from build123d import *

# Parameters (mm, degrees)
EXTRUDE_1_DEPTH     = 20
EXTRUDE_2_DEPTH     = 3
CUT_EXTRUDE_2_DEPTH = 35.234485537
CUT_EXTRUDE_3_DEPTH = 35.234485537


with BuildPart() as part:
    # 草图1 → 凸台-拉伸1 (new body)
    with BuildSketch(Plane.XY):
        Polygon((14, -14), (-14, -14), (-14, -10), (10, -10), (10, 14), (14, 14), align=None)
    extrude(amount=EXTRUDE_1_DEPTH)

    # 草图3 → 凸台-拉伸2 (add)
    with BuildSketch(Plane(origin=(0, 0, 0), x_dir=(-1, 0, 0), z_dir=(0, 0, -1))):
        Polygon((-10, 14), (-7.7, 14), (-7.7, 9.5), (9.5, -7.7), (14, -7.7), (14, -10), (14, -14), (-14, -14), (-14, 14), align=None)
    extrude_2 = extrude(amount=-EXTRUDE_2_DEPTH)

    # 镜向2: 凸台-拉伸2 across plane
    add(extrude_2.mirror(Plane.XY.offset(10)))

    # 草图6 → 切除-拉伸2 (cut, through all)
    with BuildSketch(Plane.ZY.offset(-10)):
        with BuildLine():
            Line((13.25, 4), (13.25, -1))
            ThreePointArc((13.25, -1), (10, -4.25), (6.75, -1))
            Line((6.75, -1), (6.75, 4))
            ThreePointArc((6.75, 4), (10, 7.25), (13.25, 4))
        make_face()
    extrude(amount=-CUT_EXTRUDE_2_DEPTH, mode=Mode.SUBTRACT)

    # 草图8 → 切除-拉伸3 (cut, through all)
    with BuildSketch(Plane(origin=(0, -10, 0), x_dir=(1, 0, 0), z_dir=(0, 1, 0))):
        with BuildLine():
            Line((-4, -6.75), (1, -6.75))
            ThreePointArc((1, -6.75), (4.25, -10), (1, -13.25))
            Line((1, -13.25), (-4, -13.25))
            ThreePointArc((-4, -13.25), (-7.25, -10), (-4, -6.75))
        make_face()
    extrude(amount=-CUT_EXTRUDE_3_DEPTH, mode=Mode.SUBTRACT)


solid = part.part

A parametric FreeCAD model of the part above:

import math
import FreeCAD as App
import Part
import Sketcher
from FreeCAD import Vector
Q = App.Units.Quantity

doc = App.newDocument("Part")
body = doc.addObject("PartDesign::Body", "Body")

# Sketch on XY plane
sketch1 = body.newObject("Sketcher::SketchObject", "Sketch")
sketch1.AttachmentSupport = (doc.getObject("XY_Plane"), [""])
sketch1.MapMode = "FlatFace"
sketch1.addGeometry(Part.LineSegment(Vector(-14, -14, 0), Vector(14, -14, 0)), False)
sketch1.addGeometry(Part.LineSegment(Vector(14, -14, 0), Vector(14, 14, 0)), False)
sketch1.addGeometry(Part.LineSegment(Vector(14, 14, 0), Vector(10, 14, 0)), False)
sketch1.addGeometry(Part.LineSegment(Vector(10, 14, 0), Vector(10, -10, 0)), False)
sketch1.addGeometry(Part.LineSegment(Vector(10, -10, 0), Vector(-14, -10, 0)), False)
sketch1.addGeometry(Part.LineSegment(Vector(-14, -10, 0), Vector(-14, -14, 0)), False)
sketch1.addConstraint(Sketcher.Constraint("Coincident", 0, 2, 1, 1))
sketch1.addConstraint(Sketcher.Constraint("Coincident", 1, 2, 2, 1))
sketch1.addConstraint(Sketcher.Constraint("Coincident", 2, 2, 3, 1))
sketch1.addConstraint(Sketcher.Constraint("Coincident", 3, 2, 4, 1))
sketch1.addConstraint(Sketcher.Constraint("Coincident", 4, 2, 5, 1))
sketch1.addConstraint(Sketcher.Constraint("Coincident", 5, 2, 0, 1))
sketch1.addConstraint(Sketcher.Constraint("Horizontal", 0))
sketch1.addConstraint(Sketcher.Constraint("Vertical", 1))
sketch1.addConstraint(Sketcher.Constraint("Horizontal", 2))
sketch1.addConstraint(Sketcher.Constraint("Vertical", 3))
sketch1.addConstraint(Sketcher.Constraint("Horizontal", 4))
sketch1.addConstraint(Sketcher.Constraint("Vertical", 5))
sketch1.addConstraint(Sketcher.Constraint("Symmetric", 1, 2, 5, 2, -1, 1))
sketch1.addConstraint(Sketcher.Constraint("Equal", 0, 1))
sketch1.addConstraint(Sketcher.Constraint("Equal", 4, 3))
sketch1.addConstraint(Sketcher.Constraint("DistanceX", 0, 1, 0, 2, Q("28 mm")))
sketch1.addConstraint(Sketcher.Constraint("DistanceX", 2, 2, 2, 1, Q("4 mm")))
pad1 = body.newObject("PartDesign::Pad", "Pad")
pad1.Profile = sketch1
pad1.Length = 20

# Sketch on XY plane
sketch2 = body.newObject("Sketcher::SketchObject", "Sketch001")
sketch2.AttachmentSupport = (doc.getObject("XY_Plane"), [""])
sketch2.MapMode = "FlatFace"
sketch2.addGeometry(Part.LineSegment(Vector(7.7, 14, 0), Vector(14, 14, 0)), False)
sketch2.addGeometry(Part.LineSegment(Vector(14, 14, 0), Vector(14, -14, 0)), False)
sketch2.addGeometry(Part.LineSegment(Vector(14, -14, 0), Vector(-14, -14, 0)), False)
sketch2.addGeometry(Part.LineSegment(Vector(-14, -14, 0), Vector(-14, -7.7, 0)), False)
sketch2.addGeometry(Part.LineSegment(Vector(-14, -7.7, 0), Vector(-9.5, -7.7, 0)), False)
sketch2.addGeometry(Part.LineSegment(Vector(-9.5, -7.7, 0), Vector(7.7, 9.5, 0)), False)
sketch2.addGeometry(Part.LineSegment(Vector(7.7, 9.5, 0), Vector(7.7, 14, 0)), False)
sketch2.addConstraint(Sketcher.Constraint("Coincident", 0, 2, 1, 1))
sketch2.addConstraint(Sketcher.Constraint("Coincident", 1, 2, 2, 1))
sketch2.addConstraint(Sketcher.Constraint("Coincident", 2, 2, 3, 1))
sketch2.addConstraint(Sketcher.Constraint("Coincident", 3, 2, 4, 1))
sketch2.addConstraint(Sketcher.Constraint("Coincident", 4, 2, 5, 1))
sketch2.addConstraint(Sketcher.Constraint("Coincident", 5, 2, 6, 1))
sketch2.addConstraint(Sketcher.Constraint("Coincident", 6, 2, 0, 1))
sketch2.addConstraint(Sketcher.Constraint("Horizontal", 0))
sketch2.addConstraint(Sketcher.Constraint("Vertical", 1))
sketch2.addConstraint(Sketcher.Constraint("Horizontal", 2))
sketch2.addConstraint(Sketcher.Constraint("Vertical", 3))
sketch2.addConstraint(Sketcher.Constraint("Horizontal", 4))
sketch2.addConstraint(Sketcher.Constraint("Vertical", 6))
sketch2.addConstraint(Sketcher.Constraint("Symmetric", 0, 2, 2, 2, -1, 1))
sketch2.addConstraint(Sketcher.Constraint("Equal", 2, 1))
sketch2.addConstraint(Sketcher.Constraint("Equal", 0, 3))
sketch2.addConstraint(Sketcher.Constraint("Equal", 4, 6))
sketch2.addConstraint(Sketcher.Constraint("DistanceX", 2, 2, 2, 1, Q("28 mm")))
sketch2.addConstraint(Sketcher.Constraint("DistanceX", 0, 1, 0, 2, Q("6.3 mm")))
sketch2.addConstraint(Sketcher.Constraint("DistanceX", 4, 1, 4, 2, Q("4.5 mm")))
pad2 = body.newObject("PartDesign::Pad", "Pad001")
pad2.Profile = sketch2
pad2.Length = 3
doc.recompute()

datumplane = body.newObject("PartDesign::Plane", "DatumPlane")
datumplane.AttachmentSupport = (doc.getObject("XY_Plane"), [""])
datumplane.MapMode = "FlatFace"
datumplane.AttachmentOffset = App.Placement(Vector(0, 0, 10), App.Rotation())
mirrored = body.newObject("PartDesign::Mirrored", "Mirrored")
mirrored.Originals = [pad2]
mirrored.MirrorPlane = (datumplane, [""])
body.Tip = mirrored

# Sketch on YZ plane
sketch3 = body.newObject("Sketcher::SketchObject", "Sketch002")
sketch3.AttachmentSupport = (doc.getObject("YZ_Plane"), [""])
sketch3.MapMode = "FlatFace"
sketch3.AttachmentOffset = App.Placement(Vector(0, 0, 10), App.Rotation())
sketch3.addGeometry(Part.LineSegment(Vector(-1, 13.2, 0), Vector(4, 13.2, 0)), False)
sketch3.addGeometry(Part.ArcOfCircle(Part.Circle(Vector(4, 10, 0), Vector(0, 0, 1), 3.2), math.radians(-90), math.radians(90)), False)
sketch3.addGeometry(Part.LineSegment(Vector(4, 6.8, 0), Vector(-1, 6.8, 0)), False)
sketch3.addGeometry(Part.ArcOfCircle(Part.Circle(Vector(-1, 10, 0), Vector(0, 0, 1), 3.2), math.radians(90), math.radians(270)), False)
sketch3.addConstraint(Sketcher.Constraint("Tangent", 0, 2, 1, 2))
sketch3.addConstraint(Sketcher.Constraint("Tangent", 1, 1, 2, 1))
sketch3.addConstraint(Sketcher.Constraint("Tangent", 2, 2, 3, 2))
sketch3.addConstraint(Sketcher.Constraint("Tangent", 3, 1, 0, 1))
sketch3.addConstraint(Sketcher.Constraint("Horizontal", 0))
sketch3.addConstraint(Sketcher.Constraint("Horizontal", 2))
sketch3.addConstraint(Sketcher.Constraint("DistanceX", 0, 1, 0, 2, Q("5 mm")))
sketch3.addConstraint(Sketcher.Constraint("Radius", 1, Q("3.25 mm")))
sketch3.addConstraint(Sketcher.Constraint("DistanceX", -1, 1, 1, 3, Q("4 mm")))
sketch3.addConstraint(Sketcher.Constraint("DistanceY", -1, 1, 1, 3, Q("10 mm")))
pocket1 = body.newObject("PartDesign::Pocket", "Pocket")
pocket1.Profile = sketch3
pocket1.Type = "ThroughAll"
pocket1.Reversed = True

# Sketch on XZ plane
sketch4 = body.newObject("Sketcher::SketchObject", "Sketch003")
sketch4.AttachmentSupport = (doc.getObject("XZ_Plane"), [""])
sketch4.MapMode = "FlatFace"
sketch4.AttachmentOffset = App.Placement(Vector(0, 0, 10), App.Rotation())
sketch4.addGeometry(Part.LineSegment(Vector(1, 6.8, 0), Vector(-4, 6.8, 0)), False)
sketch4.addGeometry(Part.ArcOfCircle(Part.Circle(Vector(-4, 10, 0), Vector(0, 0, 1), 3.2), math.radians(90), math.radians(270)), False)
sketch4.addGeometry(Part.LineSegment(Vector(-4, 13.2, 0), Vector(1, 13.2, 0)), False)
sketch4.addGeometry(Part.ArcOfCircle(Part.Circle(Vector(1, 10, 0), Vector(0, 0, 1), 3.2), math.radians(-90), math.radians(90)), False)
sketch4.addConstraint(Sketcher.Constraint("Tangent", 0, 2, 1, 2))
sketch4.addConstraint(Sketcher.Constraint("Tangent", 1, 1, 2, 1))
sketch4.addConstraint(Sketcher.Constraint("Tangent", 2, 2, 3, 2))
sketch4.addConstraint(Sketcher.Constraint("Tangent", 3, 1, 0, 1))
sketch4.addConstraint(Sketcher.Constraint("Horizontal", 0))
sketch4.addConstraint(Sketcher.Constraint("Horizontal", 2))
sketch4.addConstraint(Sketcher.Constraint("DistanceX", 0, 2, 0, 1, Q("5 mm")))
sketch4.addConstraint(Sketcher.Constraint("Radius", 1, Q("3.25 mm")))
sketch4.addConstraint(Sketcher.Constraint("DistanceX", 1, 3, -1, 1, Q("4 mm")))
sketch4.addConstraint(Sketcher.Constraint("DistanceY", -1, 1, 1, 3, Q("10 mm")))
pocket2 = body.newObject("PartDesign::Pocket", "Pocket001")
pocket2.Profile = sketch4
pocket2.Type = "ThroughAll"
pocket2.Reversed = True

doc.recompute()
